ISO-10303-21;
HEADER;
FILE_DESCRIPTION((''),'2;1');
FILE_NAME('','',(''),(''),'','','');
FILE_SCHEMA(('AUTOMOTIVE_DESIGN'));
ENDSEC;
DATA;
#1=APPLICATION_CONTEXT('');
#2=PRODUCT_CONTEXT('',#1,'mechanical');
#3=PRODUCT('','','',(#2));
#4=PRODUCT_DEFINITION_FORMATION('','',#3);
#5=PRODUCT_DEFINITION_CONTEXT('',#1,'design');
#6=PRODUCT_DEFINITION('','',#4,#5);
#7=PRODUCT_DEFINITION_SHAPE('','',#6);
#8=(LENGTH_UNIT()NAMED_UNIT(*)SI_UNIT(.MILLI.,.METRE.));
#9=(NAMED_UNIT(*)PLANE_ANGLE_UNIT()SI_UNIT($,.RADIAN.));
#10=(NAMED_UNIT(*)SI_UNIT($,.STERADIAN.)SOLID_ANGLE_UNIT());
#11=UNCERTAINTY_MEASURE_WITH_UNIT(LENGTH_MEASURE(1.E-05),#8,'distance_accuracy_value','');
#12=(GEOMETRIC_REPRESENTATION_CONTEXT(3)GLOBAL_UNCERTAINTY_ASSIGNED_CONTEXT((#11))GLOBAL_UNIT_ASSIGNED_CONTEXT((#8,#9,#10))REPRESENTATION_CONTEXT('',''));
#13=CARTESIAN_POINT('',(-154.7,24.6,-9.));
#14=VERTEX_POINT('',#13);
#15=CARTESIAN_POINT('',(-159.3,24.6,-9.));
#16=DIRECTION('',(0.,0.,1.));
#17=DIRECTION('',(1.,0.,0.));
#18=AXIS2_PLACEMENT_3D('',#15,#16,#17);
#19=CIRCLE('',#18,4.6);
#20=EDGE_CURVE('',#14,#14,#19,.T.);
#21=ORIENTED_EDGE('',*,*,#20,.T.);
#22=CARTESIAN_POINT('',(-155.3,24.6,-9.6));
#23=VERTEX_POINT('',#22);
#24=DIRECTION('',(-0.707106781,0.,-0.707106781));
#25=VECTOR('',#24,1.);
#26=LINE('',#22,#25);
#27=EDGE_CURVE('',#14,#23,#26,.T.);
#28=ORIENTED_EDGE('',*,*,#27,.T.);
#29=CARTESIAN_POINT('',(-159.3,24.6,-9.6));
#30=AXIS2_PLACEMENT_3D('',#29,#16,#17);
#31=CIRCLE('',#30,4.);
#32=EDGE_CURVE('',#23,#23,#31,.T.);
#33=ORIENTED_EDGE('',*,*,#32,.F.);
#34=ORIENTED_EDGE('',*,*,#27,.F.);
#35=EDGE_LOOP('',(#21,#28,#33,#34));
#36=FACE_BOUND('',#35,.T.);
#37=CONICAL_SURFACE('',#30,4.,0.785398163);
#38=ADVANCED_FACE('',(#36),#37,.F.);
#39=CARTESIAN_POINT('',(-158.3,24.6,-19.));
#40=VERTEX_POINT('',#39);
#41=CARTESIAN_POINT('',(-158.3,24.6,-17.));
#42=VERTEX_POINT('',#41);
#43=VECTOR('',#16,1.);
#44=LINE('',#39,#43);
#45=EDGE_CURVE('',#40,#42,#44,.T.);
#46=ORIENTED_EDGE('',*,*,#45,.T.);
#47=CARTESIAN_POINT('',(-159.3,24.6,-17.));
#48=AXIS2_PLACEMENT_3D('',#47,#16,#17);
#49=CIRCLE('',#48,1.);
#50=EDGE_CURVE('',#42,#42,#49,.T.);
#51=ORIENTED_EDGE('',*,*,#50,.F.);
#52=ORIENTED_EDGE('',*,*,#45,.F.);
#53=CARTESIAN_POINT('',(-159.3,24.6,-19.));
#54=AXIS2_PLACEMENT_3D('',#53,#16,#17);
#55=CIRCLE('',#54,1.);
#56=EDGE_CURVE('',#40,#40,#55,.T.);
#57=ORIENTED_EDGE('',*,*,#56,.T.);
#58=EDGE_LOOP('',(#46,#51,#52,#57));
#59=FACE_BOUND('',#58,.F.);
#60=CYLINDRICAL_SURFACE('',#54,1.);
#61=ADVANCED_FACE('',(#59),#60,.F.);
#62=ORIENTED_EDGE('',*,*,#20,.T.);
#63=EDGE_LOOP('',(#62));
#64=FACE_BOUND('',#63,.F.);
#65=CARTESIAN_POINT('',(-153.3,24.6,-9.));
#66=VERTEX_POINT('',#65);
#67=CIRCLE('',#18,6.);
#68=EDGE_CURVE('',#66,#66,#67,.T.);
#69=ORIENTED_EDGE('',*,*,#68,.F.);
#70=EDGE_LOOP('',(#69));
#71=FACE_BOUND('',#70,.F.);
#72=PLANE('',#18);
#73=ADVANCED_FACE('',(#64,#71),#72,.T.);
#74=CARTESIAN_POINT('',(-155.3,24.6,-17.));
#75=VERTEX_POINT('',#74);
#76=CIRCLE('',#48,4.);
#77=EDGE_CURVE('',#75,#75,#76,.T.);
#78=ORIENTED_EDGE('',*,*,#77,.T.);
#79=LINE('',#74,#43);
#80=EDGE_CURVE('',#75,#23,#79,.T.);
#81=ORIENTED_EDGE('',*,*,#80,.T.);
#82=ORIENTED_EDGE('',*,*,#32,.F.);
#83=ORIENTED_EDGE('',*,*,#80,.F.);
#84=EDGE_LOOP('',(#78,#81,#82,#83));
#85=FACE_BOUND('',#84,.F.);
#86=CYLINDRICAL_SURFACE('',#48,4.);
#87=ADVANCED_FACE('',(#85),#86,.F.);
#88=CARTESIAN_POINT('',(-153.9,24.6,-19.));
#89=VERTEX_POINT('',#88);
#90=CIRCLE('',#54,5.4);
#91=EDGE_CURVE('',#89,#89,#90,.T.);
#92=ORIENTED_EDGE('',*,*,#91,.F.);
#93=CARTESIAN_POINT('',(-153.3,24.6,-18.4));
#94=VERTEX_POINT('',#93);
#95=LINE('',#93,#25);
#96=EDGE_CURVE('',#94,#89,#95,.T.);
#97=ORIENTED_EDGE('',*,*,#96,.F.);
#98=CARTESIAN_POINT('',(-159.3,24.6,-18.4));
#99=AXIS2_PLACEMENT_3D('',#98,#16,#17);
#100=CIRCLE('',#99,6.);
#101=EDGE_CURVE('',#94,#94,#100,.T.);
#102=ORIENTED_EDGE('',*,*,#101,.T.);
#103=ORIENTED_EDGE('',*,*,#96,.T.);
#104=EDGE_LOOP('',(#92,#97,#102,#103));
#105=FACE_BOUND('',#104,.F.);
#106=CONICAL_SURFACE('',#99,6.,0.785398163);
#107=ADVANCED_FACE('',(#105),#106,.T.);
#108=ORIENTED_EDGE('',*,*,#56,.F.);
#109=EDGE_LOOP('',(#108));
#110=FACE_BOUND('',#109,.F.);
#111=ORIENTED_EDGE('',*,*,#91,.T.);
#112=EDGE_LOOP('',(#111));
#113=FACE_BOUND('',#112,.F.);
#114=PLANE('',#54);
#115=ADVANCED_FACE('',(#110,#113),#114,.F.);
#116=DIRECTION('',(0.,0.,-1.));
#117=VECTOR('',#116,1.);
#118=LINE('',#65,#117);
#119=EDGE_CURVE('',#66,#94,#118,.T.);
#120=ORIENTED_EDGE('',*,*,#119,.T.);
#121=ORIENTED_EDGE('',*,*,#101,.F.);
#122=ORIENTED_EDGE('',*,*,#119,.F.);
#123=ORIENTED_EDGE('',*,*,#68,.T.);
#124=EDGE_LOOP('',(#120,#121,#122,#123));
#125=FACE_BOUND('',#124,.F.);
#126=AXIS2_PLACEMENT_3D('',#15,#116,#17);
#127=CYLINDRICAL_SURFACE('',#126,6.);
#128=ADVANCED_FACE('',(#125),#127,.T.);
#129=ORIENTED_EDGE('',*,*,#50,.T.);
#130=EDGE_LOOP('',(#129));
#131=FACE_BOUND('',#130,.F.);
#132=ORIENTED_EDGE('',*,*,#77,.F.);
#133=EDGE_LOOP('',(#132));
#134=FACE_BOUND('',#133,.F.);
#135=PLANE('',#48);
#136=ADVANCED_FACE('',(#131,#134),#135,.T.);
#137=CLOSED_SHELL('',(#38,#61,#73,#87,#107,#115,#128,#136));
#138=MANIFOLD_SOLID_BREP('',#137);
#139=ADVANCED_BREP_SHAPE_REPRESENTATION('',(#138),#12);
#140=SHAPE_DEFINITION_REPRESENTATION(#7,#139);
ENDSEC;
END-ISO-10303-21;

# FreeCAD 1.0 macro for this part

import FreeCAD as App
import Part
import Sketcher
Q = App.Units.Quantity


def edges_at(feature, points):
    """Names of the edges that pass closest to the given points."""
    edges = feature.Shape.Edges
    near = lambda p: min(range(len(edges)), key=lambda i: edges[i].distToShape(Part.Vertex(*p))[0])
    return sorted({f"Edge{near(p) + 1}" for p in points})


def add_polygon(sketch, points):
    """Adds a closed chain of lines whose ends are joined by coincident constraints."""
    first, n = sketch.GeometryCount, len(points)
    for a, b in zip(points, points[1:] + points[:1]):
        sketch.addGeometry(Part.LineSegment(App.Vector(*a, 0), App.Vector(*b, 0)), False)
    for i in range(n):
        sketch.addConstraint(Sketcher.Constraint("Coincident", first + i, 2, first + (i + 1) % n, 1))

doc = App.newDocument("Part")
body = doc.addObject("PartDesign::Body", "Body")

# Sketch on XZ plane
sketch1 = body.newObject("Sketcher::SketchObject", "Sketch")
sketch1.AttachmentSupport = (doc.getObject("XZ_Plane"), [""])
sketch1.MapMode = "FlatFace"
add_polygon(sketch1, [(4, -8), (1, -8), (1, -10), (6, -10), (6, 0), (4, 0)])  # lines 0-5
sketch1.addConstraint([
    Sketcher.Constraint("Horizontal", 0),
    Sketcher.Constraint("Vertical", 1),
    Sketcher.Constraint("Horizontal", 2),
    Sketcher.Constraint("Vertical", 3),
    Sketcher.Constraint("Horizontal", 4),
    Sketcher.Constraint("Vertical", 5),
    Sketcher.Constraint("PointOnObject", 3, 2, -1),
    Sketcher.Constraint("Equal", 4, 1),
    Sketcher.Constraint("DistanceX", 0, 2, 0, 1, Q("3 mm")),
    Sketcher.Constraint("DistanceX", 2, 1, 2, 2, Q("5 mm")),
    Sketcher.Constraint("DistanceY", 3, 1, 3, 2, Q("10 mm")),
    Sketcher.Constraint("DistanceX", -1, 1, 0, 2, Q("1 mm")),
])
revolution = body.newObject("PartDesign::Revolution", "Revolution")
revolution.Profile = sketch1
revolution.ReferenceAxis = (sketch1, ["V_Axis"])
revolution.Angle = 360
doc.recompute()

chamfer = body.newObject("PartDesign::Chamfer", "Chamfer")
chamfer.Base = (revolution, edges_at(revolution, [(-6, 0, -10)]))
chamfer.Size = 0.6
doc.recompute()

chamfer2 = body.newObject("PartDesign::Chamfer", "Chamfer001")
chamfer2.Base = (chamfer, edges_at(chamfer, [(-4, 0, 0)]))
chamfer2.Size = 0.6
body2 = doc.addObject("PartDesign::Body", "Body001")
doc.recompute()

body.Placement = App.Placement(App.Vector(-159.3, 24.6, -9), App.Rotation(App.Vector(0, 0, 1), 0))
boolean = body2.newObject("PartDesign::Boolean", "Boolean")
boolean.Type = "Fuse"
boolean.addObjects([body])

doc.recompute()
